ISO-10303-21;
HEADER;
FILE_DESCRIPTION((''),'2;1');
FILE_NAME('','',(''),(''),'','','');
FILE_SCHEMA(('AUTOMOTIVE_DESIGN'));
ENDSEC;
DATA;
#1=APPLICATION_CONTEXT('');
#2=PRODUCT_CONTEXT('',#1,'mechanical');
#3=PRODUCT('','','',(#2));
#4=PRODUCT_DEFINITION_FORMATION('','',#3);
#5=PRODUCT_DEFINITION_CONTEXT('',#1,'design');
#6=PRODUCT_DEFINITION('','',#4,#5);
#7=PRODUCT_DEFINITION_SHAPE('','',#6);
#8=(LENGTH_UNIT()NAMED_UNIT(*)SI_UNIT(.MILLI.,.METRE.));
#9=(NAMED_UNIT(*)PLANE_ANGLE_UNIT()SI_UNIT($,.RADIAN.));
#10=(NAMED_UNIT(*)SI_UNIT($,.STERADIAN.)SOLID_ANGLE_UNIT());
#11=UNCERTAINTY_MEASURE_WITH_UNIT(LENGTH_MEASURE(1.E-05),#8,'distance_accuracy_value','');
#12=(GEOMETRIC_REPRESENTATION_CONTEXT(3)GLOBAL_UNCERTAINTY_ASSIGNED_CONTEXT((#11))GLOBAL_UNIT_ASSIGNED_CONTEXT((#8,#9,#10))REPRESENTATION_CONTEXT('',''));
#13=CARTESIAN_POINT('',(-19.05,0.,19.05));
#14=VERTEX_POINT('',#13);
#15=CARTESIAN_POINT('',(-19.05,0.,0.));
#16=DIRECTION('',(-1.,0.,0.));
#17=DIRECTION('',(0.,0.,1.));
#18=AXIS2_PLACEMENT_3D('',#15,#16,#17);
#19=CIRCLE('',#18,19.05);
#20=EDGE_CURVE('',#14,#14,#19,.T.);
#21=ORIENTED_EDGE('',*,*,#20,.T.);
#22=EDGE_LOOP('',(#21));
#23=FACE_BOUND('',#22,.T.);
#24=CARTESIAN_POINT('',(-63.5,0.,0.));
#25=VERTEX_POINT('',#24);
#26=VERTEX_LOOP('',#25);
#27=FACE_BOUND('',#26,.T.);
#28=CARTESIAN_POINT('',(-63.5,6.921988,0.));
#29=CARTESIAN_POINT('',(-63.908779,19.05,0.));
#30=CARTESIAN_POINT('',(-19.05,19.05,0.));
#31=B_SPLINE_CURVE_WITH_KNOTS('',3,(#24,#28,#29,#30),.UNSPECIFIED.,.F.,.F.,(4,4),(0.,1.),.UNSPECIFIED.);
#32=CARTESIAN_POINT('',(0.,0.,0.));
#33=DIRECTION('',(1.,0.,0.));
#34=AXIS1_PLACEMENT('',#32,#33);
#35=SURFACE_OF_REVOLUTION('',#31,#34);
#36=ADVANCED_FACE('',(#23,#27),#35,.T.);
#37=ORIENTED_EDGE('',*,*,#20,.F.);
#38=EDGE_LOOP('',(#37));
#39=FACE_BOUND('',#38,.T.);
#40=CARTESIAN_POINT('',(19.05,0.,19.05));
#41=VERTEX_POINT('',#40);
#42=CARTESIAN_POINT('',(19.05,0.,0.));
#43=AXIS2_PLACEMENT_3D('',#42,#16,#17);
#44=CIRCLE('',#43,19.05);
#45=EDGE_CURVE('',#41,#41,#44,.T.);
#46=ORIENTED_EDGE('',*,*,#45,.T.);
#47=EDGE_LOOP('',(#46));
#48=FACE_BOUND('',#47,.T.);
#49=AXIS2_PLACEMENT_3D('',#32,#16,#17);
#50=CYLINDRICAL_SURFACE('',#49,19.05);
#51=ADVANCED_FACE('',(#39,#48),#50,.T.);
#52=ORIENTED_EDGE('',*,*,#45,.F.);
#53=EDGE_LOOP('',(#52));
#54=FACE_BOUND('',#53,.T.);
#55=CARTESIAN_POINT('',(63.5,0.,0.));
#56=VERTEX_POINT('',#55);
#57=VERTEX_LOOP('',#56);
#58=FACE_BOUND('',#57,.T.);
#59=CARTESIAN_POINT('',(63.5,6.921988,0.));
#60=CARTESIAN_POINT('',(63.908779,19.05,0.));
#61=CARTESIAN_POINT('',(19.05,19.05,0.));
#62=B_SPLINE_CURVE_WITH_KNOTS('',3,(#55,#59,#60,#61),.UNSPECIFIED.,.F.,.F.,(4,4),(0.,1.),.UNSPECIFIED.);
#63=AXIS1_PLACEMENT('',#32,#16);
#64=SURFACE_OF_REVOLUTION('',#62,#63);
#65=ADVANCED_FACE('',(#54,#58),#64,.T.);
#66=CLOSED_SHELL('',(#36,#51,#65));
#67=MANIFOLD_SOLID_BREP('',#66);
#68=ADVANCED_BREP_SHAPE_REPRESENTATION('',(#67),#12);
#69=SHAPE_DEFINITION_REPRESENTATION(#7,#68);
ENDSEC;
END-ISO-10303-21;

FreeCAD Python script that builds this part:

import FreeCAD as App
import Part
import Sketcher

V = App.Vector

doc = App.newDocument("Part")
body = doc.addObject("PartDesign::Body", "Body")

sketch1 = body.newObject("Sketcher::SketchObject", "Sketch")
sketch1.AttachmentSupport = (doc.getObject("XY_Plane"), [""])
sketch1.MapMode = "FlatFace"
sketch1.addGeometry(Part.LineSegment(V(0, 0, 0), V(63.5, 0, 0)), False)
sketch1.addGeometry(Part.BSplineCurve([V(19.05, 19.05, 0), V(63.908779, 19.05, 0), V(63.5, 6.921988, 0), V(63.5, 0, 0)], [4, 4], [0, 1], False, 3, [1, 1, 1, 1], False), False)
sketch1.addGeometry(Part.LineSegment(V(19.05, 19.05, 0), V(0, 19.05, 0)), False)
sketch1.addGeometry(Part.LineSegment(V(0, 19.05, 0), V(0, 0, 0)), False)
sketch1.addConstraint(Sketcher.Constraint("Block", 1))
sketch1.addConstraint(Sketcher.Constraint("Coincident", 0, 2, 1, 2))
sketch1.addConstraint(Sketcher.Constraint("Coincident", 1, 1, 2, 1))
sketch1.addConstraint(Sketcher.Constraint("Coincident", 2, 2, 3, 1))
sketch1.addConstraint(Sketcher.Constraint("Coincident", 3, 2, 0, 1))
sketch1.addConstraint(Sketcher.Constraint("Horizontal", 0))
sketch1.addConstraint(Sketcher.Constraint("Horizontal", 2))
sketch1.addConstraint(Sketcher.Constraint("Vertical", 3))
sketch1.addConstraint(Sketcher.Constraint("PointOnObject", 2, 2, -2))
revolution = body.newObject("PartDesign::Revolution", "Revolution")
revolution.Profile = sketch1
revolution.ReferenceAxis = (sketch1, ["H_Axis"])
revolution.Angle = 360
doc.recompute()

mirrored = body.newObject("PartDesign::Mirrored", "Mirrored")
mirrored.Originals = [revolution]
mirrored.MirrorPlane = (doc.getObject("YZ_Plane"), [""])
body.Tip = mirrored

doc.recompute()
